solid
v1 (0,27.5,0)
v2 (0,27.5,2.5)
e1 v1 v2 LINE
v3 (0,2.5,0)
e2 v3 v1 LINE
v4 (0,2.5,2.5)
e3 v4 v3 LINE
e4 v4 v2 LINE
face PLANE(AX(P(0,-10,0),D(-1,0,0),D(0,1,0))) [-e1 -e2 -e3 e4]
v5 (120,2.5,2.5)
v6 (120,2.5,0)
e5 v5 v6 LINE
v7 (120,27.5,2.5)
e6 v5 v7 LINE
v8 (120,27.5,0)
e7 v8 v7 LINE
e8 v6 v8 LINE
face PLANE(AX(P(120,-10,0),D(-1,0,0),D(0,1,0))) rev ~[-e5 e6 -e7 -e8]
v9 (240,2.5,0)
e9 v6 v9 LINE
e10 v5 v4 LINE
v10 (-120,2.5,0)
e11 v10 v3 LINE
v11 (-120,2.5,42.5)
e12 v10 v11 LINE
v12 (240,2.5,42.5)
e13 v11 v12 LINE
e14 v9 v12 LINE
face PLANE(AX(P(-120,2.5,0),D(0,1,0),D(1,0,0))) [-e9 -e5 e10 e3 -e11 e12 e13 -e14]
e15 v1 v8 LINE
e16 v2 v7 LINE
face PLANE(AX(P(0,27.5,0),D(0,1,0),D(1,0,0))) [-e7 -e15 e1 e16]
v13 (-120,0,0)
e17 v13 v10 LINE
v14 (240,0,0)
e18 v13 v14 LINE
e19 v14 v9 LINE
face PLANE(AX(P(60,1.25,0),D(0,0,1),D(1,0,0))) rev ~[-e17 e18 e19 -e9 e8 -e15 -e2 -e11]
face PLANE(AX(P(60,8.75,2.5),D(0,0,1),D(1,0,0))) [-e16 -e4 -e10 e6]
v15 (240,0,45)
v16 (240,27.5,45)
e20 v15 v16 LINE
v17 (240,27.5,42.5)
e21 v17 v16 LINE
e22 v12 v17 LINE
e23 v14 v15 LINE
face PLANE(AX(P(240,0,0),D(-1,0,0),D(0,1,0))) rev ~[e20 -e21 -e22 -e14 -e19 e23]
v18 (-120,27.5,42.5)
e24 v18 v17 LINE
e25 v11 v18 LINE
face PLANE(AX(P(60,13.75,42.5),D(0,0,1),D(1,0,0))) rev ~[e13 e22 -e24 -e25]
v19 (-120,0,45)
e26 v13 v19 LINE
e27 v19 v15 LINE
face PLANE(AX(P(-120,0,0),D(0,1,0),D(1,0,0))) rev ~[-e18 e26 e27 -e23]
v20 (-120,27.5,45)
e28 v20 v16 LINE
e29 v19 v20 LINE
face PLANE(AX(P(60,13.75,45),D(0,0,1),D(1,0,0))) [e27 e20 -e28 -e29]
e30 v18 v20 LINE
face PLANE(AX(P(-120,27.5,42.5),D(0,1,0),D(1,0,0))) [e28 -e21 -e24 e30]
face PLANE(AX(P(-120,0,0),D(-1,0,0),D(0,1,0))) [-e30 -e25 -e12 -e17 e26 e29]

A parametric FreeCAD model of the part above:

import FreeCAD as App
import Part
import Sketcher
from FreeCAD import Vector

doc = App.newDocument("Part")
body = doc.addObject("PartDesign::Body", "Body")

sketch1 = doc.addObject("Sketcher::SketchObject", "Sketch")
body.addObject(sketch1)
sketch1.AttachmentSupport = (doc.XY_Plane, [""])
sketch1.MapMode = "FlatFace"
sketch1.AttachmentOffset = App.Placement(Vector(0, 0, -3), App.Rotation())
sketch1.addGeometry([
    Part.LineSegment(Vector(-10, 0, 0), Vector(-10, -10, 0)),
    Part.LineSegment(Vector(-10, -10, 0), Vector(129, -10, 0)),
    Part.LineSegment(Vector(129, -10, 0), Vector(129, 0, 0)),
    Part.LineSegment(Vector(129, 0, 0), Vector(-10, 0, 0)),
], False)
sketch1.addConstraint([
    Sketcher.Constraint("Coincident", 0, 2, 1, 1),
    Sketcher.Constraint("Coincident", 1, 2, 2, 1),
    Sketcher.Constraint("Coincident", 2, 2, 3, 1),
    Sketcher.Constraint("Coincident", 3, 2, 0, 1),
    Sketcher.Constraint("Vertical", 0),
    Sketcher.Constraint("Horizontal", 1),
    Sketcher.Constraint("Vertical", 2),
    Sketcher.Constraint("Horizontal", 3),
    Sketcher.Constraint("PointOnObject", 2, 2, -1),
    Sketcher.Constraint("DistanceX", 1, 1, 1, 2, 139.0),
    Sketcher.Constraint("DistanceY", 0, 2, 0, 1, 10.0),
    Sketcher.Constraint("DistanceX", 0, 2, -1, 1, 10.0),
])
pad1 = doc.addObject("PartDesign::Pad", "Pad")
body.addObject(pad1)
pad1.Profile = sketch1
pad1.Length = 10
body2 = doc.addObject("PartDesign::Body", "Body001")

sketch2 = doc.addObject("Sketcher::SketchObject", "Sketch001")
body2.addObject(sketch2)
sketch2.AttachmentSupport = (doc.getObject("XY_Plane001"), [""])
sketch2.MapMode = "FlatFace"
sketch2.addGeometry([
    Part.LineSegment(Vector(-120, 2.5, 0), Vector(-120, 0, 0)),
    Part.LineSegment(Vector(-120, 0, 0), Vector(240, 0, 0)),
    Part.LineSegment(Vector(240, 0, 0), Vector(240, 2.5, 0)),
    Part.LineSegment(Vector(240, 2.5, 0), Vector(-120, 2.5, 0)),
], False)
sketch2.addConstraint([
    Sketcher.Constraint("Coincident", 0, 2, 1, 1),
    Sketcher.Constraint("Coincident", 1, 2, 2, 1),
    Sketcher.Constraint("Coincident", 2, 2, 3, 1),
    Sketcher.Constraint("Coincident", 3, 2, 0, 1),
    Sketcher.Constraint("Vertical", 0),
    Sketcher.Constraint("Horizontal", 1),
    Sketcher.Constraint("Vertical", 2),
    Sketcher.Constraint("Horizontal", 3),
    Sketcher.Constraint("PointOnObject", 0, 2, -1),
    Sketcher.Constraint("DistanceX", 1, 1, 1, 2, 360.0),
    Sketcher.Constraint("DistanceY", 0, 2, 0, 1, 2.5),
    Sketcher.Constraint("DistanceX", 0, 2, -1, 1, 120.0),
])
pad2 = doc.addObject("PartDesign::Pad", "Pad001")
body2.addObject(pad2)
pad2.Profile = sketch2
pad2.Length = 42.5
body3 = doc.addObject("PartDesign::Body", "Body002")

sketch3 = doc.addObject("Sketcher::SketchObject", "Sketch002")
body3.addObject(sketch3)
sketch3.AttachmentSupport = (doc.getObject("XY_Plane002"), [""])
sketch3.MapMode = "FlatFace"
sketch3.addGeometry([
    Part.LineSegment(Vector(0, 27.5, 0), Vector(0, -10, 0)),
    Part.LineSegment(Vector(0, -10, 0), Vector(120, -10, 0)),
    Part.LineSegment(Vector(120, -10, 0), Vector(120, 27.5, 0)),
    Part.LineSegment(Vector(120, 27.5, 0), Vector(0, 27.5, 0)),
], False)
sketch3.addConstraint([
    Sketcher.Constraint("Coincident", 0, 2, 1, 1),
    Sketcher.Constraint("Coincident", 1, 2, 2, 1),
    Sketcher.Constraint("Coincident", 2, 2, 3, 1),
    Sketcher.Constraint("Coincident", 3, 2, 0, 1),
    Sketcher.Constraint("Vertical", 0),
    Sketcher.Constraint("Horizontal", 1),
    Sketcher.Constraint("Vertical", 2),
    Sketcher.Constraint("Horizontal", 3),
    Sketcher.Constraint("PointOnObject", 0, 2, -2),
    Sketcher.Constraint("DistanceX", 1, 1, 1, 2, 120.0),
    Sketcher.Constraint("DistanceY", 0, 2, 0, 1, 37.5),
    Sketcher.Constraint("DistanceY", 0, 2, -1, 1, 10.0),
])
pad3 = doc.addObject("PartDesign::Pad", "Pad002")
body3.addObject(pad3)
pad3.Profile = sketch3
pad3.Length = 2.5
doc.recompute()

boolean = doc.addObject("PartDesign::Boolean", "Boolean")
body3.addObject(boolean)
boolean.Type = "Fuse"
boolean.addObjects([body2])
body4 = doc.addObject("PartDesign::Body", "Body003")

sketch4 = doc.addObject("Sketcher::SketchObject", "Sketch003")
body4.addObject(sketch4)
sketch4.AttachmentSupport = (doc.getObject("XY_Plane003"), [""])
sketch4.MapMode = "FlatFace"
sketch4.AttachmentOffset = App.Placement(Vector(0, 0, 42.5), App.Rotation())
sketch4.addGeometry([
    Part.LineSegment(Vector(-120, 27.5, 0), Vector(-120, 0, 0)),
    Part.LineSegment(Vector(-120, 0, 0), Vector(240, 0, 0)),
    Part.LineSegment(Vector(240, 0, 0), Vector(240, 27.5, 0)),
    Part.LineSegment(Vector(240, 27.5, 0), Vector(-120, 27.5, 0)),
], False)
sketch4.addConstraint([
    Sketcher.Constraint("Coincident", 0, 2, 1, 1),
    Sketcher.Constraint("Coincident", 1, 2, 2, 1),
    Sketcher.Constraint("Coincident", 2, 2, 3, 1),
    Sketcher.Constraint("Coincident", 3, 2, 0, 1),
    Sketcher.Constraint("Vertical", 0),
    Sketcher.Constraint("Horizontal", 1),
    Sketcher.Constraint("Vertical", 2),
    Sketcher.Constraint("Horizontal", 3),
    Sketcher.Constraint("PointOnObject", 0, 2, -1),
    Sketcher.Constraint("DistanceX", 1, 1, 1, 2, 360.0),
    Sketcher.Constraint("DistanceY", 0, 2, 0, 1, 27.5),
    Sketcher.Constraint("DistanceX", 0, 2, -1, 1, 120.0),
])
pad4 = doc.addObject("PartDesign::Pad", "Pad003")
body4.addObject(pad4)
pad4.Profile = sketch4
pad4.Length = 2.5
doc.recompute()

boolean2 = doc.addObject("PartDesign::Boolean", "Boolean001")
body4.addObject(boolean2)
boolean2.Type = "Fuse"
boolean2.addObjects([body3])
doc.recompute()

boolean3 = doc.addObject("PartDesign::Boolean", "Boolean002")
body4.addObject(boolean3)
boolean3.Type = "Cut"
boolean3.addObjects([body])

doc.recompute()
